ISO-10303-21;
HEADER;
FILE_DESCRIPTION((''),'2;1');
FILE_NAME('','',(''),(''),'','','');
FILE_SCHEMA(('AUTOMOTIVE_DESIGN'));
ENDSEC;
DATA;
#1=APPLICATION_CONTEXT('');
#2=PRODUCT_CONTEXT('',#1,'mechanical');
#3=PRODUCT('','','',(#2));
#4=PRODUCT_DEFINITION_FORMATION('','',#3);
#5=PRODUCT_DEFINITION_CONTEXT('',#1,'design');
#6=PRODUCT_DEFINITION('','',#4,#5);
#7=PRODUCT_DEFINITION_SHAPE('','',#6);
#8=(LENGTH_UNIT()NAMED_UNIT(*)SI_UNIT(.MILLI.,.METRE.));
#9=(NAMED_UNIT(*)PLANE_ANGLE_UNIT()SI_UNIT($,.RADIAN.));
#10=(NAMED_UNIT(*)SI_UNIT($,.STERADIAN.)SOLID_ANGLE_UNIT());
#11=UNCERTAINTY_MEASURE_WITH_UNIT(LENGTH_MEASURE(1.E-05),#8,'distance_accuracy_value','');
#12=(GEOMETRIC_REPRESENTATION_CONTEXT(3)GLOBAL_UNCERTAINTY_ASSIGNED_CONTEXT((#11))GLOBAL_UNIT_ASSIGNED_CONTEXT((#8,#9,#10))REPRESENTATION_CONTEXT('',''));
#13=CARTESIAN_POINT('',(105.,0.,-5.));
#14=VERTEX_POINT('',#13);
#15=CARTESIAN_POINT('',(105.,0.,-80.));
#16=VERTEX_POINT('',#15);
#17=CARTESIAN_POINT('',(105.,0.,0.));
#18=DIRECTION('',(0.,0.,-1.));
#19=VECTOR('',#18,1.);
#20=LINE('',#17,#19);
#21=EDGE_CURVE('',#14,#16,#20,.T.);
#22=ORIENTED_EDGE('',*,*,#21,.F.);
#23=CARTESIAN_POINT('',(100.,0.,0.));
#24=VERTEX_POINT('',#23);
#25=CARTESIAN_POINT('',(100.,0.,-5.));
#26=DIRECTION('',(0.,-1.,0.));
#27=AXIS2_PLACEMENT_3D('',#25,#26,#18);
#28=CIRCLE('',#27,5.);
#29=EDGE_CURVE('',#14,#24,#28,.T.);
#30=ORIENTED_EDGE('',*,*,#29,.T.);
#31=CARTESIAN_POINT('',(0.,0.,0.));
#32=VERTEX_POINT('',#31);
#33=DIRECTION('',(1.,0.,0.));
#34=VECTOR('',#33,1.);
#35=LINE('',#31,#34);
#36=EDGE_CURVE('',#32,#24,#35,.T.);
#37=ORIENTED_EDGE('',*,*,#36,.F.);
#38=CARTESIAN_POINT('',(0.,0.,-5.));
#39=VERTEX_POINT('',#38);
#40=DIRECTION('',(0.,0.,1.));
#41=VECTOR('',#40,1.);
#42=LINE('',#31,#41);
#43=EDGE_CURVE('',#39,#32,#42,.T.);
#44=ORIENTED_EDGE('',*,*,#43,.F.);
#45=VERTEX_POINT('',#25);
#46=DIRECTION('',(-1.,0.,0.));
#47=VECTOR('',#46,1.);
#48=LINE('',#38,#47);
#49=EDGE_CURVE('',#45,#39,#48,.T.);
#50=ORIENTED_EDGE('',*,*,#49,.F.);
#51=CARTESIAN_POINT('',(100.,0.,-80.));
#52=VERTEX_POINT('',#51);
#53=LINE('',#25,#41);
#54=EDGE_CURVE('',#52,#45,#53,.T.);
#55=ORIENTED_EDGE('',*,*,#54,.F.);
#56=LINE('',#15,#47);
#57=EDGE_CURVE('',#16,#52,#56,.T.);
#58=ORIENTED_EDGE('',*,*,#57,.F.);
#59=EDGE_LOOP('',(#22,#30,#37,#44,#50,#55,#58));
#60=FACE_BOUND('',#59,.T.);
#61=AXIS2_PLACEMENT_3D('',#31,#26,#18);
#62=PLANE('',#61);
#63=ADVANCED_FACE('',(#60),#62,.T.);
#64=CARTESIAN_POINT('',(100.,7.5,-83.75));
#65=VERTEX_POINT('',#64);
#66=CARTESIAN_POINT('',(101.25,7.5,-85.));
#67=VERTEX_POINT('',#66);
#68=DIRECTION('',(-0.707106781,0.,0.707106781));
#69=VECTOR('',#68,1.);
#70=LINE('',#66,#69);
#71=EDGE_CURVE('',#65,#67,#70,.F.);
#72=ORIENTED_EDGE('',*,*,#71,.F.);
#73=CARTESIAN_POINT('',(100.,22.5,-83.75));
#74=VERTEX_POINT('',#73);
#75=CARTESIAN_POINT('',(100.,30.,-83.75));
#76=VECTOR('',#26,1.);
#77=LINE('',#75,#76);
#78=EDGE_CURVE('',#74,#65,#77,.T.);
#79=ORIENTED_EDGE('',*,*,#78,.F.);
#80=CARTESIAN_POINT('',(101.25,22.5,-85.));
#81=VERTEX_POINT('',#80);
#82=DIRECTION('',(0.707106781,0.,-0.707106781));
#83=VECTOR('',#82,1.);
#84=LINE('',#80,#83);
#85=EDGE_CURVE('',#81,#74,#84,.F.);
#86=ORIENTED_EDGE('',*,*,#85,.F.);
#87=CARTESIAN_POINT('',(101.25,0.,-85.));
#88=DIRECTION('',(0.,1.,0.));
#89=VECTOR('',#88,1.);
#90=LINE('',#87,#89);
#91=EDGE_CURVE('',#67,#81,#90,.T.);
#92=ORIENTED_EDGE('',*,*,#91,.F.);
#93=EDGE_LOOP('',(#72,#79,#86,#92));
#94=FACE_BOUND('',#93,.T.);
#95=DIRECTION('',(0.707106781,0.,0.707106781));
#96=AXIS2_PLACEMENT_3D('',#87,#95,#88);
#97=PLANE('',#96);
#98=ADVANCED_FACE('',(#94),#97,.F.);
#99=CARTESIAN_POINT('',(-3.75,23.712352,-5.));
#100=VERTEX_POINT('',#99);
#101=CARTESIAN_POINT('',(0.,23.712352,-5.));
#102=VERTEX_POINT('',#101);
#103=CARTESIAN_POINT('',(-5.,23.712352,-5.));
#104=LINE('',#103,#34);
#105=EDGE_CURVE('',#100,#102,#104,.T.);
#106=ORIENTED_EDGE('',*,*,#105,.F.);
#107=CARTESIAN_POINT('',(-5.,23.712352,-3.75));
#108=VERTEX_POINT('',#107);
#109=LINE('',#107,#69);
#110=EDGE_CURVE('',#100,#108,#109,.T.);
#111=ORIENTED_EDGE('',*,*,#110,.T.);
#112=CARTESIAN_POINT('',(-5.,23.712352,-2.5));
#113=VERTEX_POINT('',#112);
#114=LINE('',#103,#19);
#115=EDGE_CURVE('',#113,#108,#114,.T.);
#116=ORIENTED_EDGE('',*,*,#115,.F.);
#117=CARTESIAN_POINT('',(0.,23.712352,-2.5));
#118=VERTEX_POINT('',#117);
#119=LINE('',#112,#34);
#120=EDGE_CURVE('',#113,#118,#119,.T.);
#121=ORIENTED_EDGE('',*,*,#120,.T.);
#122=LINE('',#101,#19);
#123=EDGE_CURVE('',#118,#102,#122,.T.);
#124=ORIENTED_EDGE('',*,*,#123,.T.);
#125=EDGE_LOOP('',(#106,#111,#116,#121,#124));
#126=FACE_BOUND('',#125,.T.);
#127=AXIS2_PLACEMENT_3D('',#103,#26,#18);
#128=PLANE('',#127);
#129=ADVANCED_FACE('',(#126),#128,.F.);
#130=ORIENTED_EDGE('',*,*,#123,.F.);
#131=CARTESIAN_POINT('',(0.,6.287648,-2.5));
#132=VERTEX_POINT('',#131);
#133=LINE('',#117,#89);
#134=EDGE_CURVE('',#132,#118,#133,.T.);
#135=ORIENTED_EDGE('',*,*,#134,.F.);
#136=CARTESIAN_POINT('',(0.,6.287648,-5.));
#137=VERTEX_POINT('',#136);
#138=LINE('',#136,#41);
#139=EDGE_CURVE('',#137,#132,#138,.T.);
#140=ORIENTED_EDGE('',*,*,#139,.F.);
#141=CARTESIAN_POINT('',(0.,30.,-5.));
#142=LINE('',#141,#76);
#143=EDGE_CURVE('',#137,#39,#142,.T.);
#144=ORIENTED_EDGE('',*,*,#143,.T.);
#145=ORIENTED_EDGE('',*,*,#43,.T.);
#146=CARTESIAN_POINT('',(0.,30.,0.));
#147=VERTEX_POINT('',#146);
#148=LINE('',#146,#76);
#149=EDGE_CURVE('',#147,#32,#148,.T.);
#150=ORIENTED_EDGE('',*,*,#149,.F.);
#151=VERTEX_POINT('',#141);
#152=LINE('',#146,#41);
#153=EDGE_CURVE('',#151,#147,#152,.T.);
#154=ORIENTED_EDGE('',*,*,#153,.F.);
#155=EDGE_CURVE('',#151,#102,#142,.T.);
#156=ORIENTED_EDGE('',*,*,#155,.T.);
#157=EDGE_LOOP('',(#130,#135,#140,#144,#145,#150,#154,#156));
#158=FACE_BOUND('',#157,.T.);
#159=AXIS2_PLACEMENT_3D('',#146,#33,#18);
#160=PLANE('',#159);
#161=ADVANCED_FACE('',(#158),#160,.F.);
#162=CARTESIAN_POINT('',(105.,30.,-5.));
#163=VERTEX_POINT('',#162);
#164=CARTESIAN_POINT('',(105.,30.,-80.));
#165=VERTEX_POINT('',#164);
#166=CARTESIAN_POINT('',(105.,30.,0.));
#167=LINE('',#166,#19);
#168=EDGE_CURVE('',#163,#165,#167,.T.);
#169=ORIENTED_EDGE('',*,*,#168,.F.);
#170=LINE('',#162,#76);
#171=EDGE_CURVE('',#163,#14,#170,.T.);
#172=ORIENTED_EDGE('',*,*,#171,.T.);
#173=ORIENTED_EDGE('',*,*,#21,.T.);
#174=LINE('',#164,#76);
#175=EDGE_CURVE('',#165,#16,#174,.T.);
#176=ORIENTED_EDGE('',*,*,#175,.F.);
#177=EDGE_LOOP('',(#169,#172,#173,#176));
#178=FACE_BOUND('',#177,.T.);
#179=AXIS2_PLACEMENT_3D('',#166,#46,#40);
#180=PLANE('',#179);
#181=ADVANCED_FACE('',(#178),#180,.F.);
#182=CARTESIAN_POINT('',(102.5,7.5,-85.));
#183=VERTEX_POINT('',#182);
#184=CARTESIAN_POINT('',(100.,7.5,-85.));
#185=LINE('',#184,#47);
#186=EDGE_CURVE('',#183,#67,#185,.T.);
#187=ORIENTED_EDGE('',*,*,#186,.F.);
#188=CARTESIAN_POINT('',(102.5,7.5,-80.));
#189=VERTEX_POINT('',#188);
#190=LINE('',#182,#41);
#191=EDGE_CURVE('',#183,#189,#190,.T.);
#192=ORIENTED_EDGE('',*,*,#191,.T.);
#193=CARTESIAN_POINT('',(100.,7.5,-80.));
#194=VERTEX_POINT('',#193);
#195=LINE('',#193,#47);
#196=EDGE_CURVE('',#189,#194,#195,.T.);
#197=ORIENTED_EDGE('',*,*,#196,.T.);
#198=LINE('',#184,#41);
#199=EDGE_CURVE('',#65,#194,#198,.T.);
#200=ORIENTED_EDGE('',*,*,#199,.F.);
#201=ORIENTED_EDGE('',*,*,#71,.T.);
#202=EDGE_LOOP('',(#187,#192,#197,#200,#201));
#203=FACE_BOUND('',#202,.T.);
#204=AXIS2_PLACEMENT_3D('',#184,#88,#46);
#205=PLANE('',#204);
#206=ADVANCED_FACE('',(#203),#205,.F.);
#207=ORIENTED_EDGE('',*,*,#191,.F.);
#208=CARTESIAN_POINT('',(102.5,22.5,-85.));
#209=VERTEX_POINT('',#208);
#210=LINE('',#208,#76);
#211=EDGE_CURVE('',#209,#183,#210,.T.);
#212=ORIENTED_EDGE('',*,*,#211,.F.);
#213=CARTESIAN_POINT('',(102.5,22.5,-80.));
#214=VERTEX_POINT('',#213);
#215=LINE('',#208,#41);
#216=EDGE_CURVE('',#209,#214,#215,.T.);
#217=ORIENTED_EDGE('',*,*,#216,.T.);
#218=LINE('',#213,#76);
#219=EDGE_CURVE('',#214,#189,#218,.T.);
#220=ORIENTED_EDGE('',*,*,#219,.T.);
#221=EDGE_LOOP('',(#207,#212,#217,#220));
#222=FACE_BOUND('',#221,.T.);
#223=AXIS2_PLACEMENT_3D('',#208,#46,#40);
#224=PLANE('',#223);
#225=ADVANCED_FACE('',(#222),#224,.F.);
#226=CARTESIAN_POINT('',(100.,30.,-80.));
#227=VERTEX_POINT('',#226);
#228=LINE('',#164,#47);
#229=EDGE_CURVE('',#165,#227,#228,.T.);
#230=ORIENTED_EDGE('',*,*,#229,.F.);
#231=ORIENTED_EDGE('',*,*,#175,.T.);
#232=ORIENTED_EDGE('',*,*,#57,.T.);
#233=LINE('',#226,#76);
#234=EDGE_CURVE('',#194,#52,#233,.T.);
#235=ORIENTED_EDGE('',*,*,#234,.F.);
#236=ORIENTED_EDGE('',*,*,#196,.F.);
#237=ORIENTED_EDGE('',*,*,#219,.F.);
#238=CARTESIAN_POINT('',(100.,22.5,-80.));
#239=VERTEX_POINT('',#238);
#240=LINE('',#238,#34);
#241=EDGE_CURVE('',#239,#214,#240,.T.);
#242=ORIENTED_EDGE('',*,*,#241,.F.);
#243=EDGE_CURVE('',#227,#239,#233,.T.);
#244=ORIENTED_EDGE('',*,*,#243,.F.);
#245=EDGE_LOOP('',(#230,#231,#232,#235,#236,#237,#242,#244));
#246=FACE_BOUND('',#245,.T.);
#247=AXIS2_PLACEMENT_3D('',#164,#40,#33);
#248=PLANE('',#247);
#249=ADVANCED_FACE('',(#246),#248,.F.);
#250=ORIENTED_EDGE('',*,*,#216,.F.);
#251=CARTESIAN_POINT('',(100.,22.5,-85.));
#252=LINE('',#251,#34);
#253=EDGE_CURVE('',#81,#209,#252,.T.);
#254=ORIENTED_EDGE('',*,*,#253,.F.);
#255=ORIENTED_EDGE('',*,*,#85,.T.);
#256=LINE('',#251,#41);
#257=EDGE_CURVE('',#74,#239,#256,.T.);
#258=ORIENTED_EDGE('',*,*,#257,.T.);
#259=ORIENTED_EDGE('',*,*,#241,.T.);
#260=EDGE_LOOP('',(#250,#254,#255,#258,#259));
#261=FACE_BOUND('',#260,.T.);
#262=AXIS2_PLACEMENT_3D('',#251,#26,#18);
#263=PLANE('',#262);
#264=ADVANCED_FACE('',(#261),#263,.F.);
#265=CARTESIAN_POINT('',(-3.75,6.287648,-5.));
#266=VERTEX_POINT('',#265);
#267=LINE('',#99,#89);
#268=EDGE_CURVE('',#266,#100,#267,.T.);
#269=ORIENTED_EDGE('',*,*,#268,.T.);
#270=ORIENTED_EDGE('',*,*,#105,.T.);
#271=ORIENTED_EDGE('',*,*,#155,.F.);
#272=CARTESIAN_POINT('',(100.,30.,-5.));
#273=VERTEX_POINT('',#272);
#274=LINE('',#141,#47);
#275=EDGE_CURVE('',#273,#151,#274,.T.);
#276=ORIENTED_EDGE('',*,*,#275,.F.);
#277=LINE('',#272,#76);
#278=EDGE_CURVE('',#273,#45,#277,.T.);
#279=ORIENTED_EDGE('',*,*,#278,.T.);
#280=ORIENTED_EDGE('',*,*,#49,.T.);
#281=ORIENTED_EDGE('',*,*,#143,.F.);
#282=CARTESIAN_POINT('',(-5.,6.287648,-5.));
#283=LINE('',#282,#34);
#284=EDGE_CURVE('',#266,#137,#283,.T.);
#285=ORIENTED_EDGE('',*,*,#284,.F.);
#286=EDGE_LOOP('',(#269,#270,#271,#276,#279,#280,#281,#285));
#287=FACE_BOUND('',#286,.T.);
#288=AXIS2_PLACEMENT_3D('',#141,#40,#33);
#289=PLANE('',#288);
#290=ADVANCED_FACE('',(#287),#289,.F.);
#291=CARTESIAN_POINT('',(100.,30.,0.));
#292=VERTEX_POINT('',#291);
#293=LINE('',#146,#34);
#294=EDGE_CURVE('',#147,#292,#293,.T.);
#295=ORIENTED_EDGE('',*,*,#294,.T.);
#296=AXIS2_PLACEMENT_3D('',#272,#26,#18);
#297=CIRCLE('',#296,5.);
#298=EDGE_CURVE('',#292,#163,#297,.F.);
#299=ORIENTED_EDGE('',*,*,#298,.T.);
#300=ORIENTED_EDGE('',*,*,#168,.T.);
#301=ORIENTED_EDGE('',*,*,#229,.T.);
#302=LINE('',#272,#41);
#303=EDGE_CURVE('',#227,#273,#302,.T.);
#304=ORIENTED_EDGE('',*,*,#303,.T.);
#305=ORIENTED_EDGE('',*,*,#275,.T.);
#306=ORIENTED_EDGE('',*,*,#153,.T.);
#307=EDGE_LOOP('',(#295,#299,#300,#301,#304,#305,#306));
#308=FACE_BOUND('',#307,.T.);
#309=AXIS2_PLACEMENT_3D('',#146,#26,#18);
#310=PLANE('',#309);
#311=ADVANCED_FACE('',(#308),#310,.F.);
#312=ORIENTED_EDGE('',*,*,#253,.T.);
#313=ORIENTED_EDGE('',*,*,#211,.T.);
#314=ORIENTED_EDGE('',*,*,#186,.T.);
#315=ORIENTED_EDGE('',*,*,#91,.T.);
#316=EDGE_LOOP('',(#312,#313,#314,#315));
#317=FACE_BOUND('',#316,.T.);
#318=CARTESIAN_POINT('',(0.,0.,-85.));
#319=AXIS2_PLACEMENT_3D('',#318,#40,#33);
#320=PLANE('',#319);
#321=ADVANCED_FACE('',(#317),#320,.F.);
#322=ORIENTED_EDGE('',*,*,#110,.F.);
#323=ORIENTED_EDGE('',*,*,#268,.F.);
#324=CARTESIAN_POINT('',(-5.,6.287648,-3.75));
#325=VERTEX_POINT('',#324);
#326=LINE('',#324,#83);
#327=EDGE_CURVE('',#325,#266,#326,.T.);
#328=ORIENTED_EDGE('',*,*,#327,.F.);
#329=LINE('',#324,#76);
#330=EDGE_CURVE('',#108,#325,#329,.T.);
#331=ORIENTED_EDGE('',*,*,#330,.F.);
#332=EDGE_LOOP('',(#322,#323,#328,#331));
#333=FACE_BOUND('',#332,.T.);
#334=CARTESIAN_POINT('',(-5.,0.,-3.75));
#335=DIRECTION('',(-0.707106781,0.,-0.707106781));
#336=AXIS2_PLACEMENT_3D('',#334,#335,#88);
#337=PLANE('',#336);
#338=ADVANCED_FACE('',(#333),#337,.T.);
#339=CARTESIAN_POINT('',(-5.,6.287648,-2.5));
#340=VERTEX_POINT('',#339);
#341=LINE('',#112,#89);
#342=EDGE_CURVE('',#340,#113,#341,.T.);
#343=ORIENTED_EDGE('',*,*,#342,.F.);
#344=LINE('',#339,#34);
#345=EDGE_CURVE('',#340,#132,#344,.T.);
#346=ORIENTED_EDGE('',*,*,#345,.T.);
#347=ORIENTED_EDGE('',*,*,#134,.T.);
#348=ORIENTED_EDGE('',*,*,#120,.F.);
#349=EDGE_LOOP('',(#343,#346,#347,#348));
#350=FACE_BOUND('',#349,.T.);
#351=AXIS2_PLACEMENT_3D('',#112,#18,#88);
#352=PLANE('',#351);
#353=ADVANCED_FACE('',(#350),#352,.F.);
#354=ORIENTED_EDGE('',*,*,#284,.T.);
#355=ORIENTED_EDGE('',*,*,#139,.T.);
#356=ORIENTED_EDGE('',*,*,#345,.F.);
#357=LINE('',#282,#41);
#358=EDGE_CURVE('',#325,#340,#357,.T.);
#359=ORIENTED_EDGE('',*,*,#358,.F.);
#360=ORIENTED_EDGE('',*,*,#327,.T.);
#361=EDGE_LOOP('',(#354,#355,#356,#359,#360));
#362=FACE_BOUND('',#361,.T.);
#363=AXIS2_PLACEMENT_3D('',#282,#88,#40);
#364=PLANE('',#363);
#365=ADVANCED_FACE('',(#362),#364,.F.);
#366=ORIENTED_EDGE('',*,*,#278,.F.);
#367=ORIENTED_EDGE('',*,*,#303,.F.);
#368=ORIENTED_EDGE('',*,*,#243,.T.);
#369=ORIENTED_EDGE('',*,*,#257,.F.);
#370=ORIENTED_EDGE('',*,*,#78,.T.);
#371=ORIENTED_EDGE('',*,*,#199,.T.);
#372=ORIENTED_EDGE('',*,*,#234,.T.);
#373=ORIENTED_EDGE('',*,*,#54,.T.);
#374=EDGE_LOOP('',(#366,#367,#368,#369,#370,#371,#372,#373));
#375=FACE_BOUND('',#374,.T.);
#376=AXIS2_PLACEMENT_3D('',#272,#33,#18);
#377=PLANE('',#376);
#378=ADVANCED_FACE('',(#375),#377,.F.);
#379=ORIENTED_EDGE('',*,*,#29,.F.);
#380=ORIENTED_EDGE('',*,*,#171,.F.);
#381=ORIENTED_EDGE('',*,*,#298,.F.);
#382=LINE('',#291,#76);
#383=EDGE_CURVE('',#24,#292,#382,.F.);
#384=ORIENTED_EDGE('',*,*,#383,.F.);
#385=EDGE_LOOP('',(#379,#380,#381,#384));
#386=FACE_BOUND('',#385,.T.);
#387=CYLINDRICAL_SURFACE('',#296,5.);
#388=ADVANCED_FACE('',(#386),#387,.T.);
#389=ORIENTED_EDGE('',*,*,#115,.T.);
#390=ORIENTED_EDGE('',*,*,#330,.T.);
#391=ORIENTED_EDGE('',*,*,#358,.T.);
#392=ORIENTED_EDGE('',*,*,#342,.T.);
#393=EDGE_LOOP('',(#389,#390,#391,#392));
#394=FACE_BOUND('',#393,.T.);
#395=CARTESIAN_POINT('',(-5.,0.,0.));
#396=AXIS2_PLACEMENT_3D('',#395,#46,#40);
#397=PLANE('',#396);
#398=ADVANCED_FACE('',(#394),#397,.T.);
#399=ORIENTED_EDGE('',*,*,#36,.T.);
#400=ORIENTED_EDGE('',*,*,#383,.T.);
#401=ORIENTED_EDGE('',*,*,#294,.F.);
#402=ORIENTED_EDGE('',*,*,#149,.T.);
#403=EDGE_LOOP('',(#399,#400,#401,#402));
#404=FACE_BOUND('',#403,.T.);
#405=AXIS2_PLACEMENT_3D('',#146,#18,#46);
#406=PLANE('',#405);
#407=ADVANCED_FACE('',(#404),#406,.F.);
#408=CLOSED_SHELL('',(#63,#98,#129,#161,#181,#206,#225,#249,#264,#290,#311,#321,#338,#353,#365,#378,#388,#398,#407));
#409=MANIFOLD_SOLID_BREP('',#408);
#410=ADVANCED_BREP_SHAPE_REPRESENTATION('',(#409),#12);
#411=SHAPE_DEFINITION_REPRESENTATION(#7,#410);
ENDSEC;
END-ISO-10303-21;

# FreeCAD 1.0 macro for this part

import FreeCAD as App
import Part
import Sketcher
from FreeCAD import Vector


def edges_at(feature, points):
    """Names of the edges that pass closest to the given points."""
    edges = feature.Shape.Edges
    near = lambda p: min(range(len(edges)), key=lambda i: edges[i].distToShape(Part.Vertex(*p))[0])
    return sorted({f"Edge{near(p) + 1}" for p in points})

doc = App.newDocument("Part")
body = doc.addObject("PartDesign::Body", "Body")

# Sketch on XZ plane
sketch1 = body.newObject("Sketcher::SketchObject", "Sketch")
sketch1.AttachmentSupport = (doc.getObject("XZ_Plane"), [""])
sketch1.MapMode = "FlatFace"
sketch1.addGeometry(Part.LineSegment(Vector(0, 0, 0), Vector(105, 0, 0)), False)
sketch1.addGeometry(Part.LineSegment(Vector(105, 0, 0), Vector(105, -80, 0)), False)
sketch1.addGeometry(Part.LineSegment(Vector(105, -80, 0), Vector(100, -80, 0)), False)
sketch1.addGeometry(Part.LineSegment(Vector(100, -80, 0), Vector(100, -5, 0)), False)
sketch1.addGeometry(Part.LineSegment(Vector(100, -5, 0), Vector(0, -5, 0)), False)
sketch1.addGeometry(Part.LineSegment(Vector(0, -5, 0), Vector(0, 0, 0)), False)
sketch1.addConstraint(Sketcher.Constraint("Coincident", 0, 2, 1, 1))
sketch1.addConstraint(Sketcher.Constraint("Coincident", 1, 2, 2, 1))
sketch1.addConstraint(Sketcher.Constraint("Coincident", 2, 2, 3, 1))
sketch1.addConstraint(Sketcher.Constraint("Coincident", 3, 2, 4, 1))
sketch1.addConstraint(Sketcher.Constraint("Coincident", 4, 2, 5, 1))
sketch1.addConstraint(Sketcher.Constraint("Coincident", 5, 2, 0, 1))
sketch1.addConstraint(Sketcher.Constraint("Horizontal", 0))
sketch1.addConstraint(Sketcher.Constraint("Vertical", 1))
sketch1.addConstraint(Sketcher.Constraint("Horizontal", 2))
sketch1.addConstraint(Sketcher.Constraint("Vertical", 3))
sketch1.addConstraint(Sketcher.Constraint("Horizontal", 4))
sketch1.addConstraint(Sketcher.Constraint("Vertical", 5))
sketch1.addConstraint(Sketcher.Constraint("Coincident", 5, 2, -1, 1))
sketch1.addConstraint(Sketcher.Constraint("Equal", 2, 5))
sketch1.addConstraint(Sketcher.Constraint("DistanceX", 0, 1, 0, 2, 105.0))
sketch1.addConstraint(Sketcher.Constraint("DistanceX", 2, 2, 2, 1, 5.0))
sketch1.addConstraint(Sketcher.Constraint("DistanceY", 1, 2, 1, 1, 80.0))
pad1 = body.newObject("PartDesign::Pad", "Pad")
pad1.Profile = sketch1
pad1.Length = 30
pad1.Reversed = True

# Sketch on YZ plane
sketch2 = body.newObject("Sketcher::SketchObject", "Sketch001")
sketch2.AttachmentSupport = (doc.getObject("YZ_Plane"), [""])
sketch2.MapMode = "FlatFace"
sketch2.addGeometry(Part.LineSegment(Vector(23.7, -5, 0), Vector(6.3, -5, 0)), False)
sketch2.addGeometry(Part.LineSegment(Vector(6.3, -5, 0), Vector(6.3, -2.5, 0)), False)
sketch2.addGeometry(Part.LineSegment(Vector(6.3, -2.5, 0), Vector(23.7, -2.5, 0)), False)
sketch2.addGeometry(Part.LineSegment(Vector(23.7, -2.5, 0), Vector(23.7, -5, 0)), False)
sketch2.addConstraint(Sketcher.Constraint("Coincident", 0, 2, 1, 1))
sketch2.addConstraint(Sketcher.Constraint("Coincident", 1, 2, 2, 1))
sketch2.addConstraint(Sketcher.Constraint("Coincident", 2, 2, 3, 1))
sketch2.addConstraint(Sketcher.Constraint("Coincident", 3, 2, 0, 1))
sketch2.addConstraint(Sketcher.Constraint("Horizontal", 0))
sketch2.addConstraint(Sketcher.Constraint("Vertical", 1))
sketch2.addConstraint(Sketcher.Constraint("Horizontal", 2))
sketch2.addConstraint(Sketcher.Constraint("Vertical", 3))
sketch2.addConstraint(Sketcher.Constraint("DistanceY", 1, 1, 1, 2, 2.5))
sketch2.addConstraint(Sketcher.Constraint("DistanceY", 0, 2, -1, 1, 5.0))
sketch2.addConstraint(Sketcher.Constraint("DistanceX", 0, 2, 0, 1, 17.424705))
sketch2.addConstraint(Sketcher.Constraint("DistanceX", -1, 1, 0, 2, 6.287648))
pad2 = body.newObject("PartDesign::Pad", "Pad001")
pad2.Profile = sketch2
pad2.Length = 5
pad2.Reversed = True
doc.recompute()

chamfer = body.newObject("PartDesign::Chamfer", "Chamfer")
chamfer.Base = (pad2, edges_at(pad2, [(-5, 15, -5)]))
chamfer.Size = 1.25

# Sketch on XY plane
sketch3 = body.newObject("Sketcher::SketchObject", "Sketch002")
sketch3.AttachmentSupport = (doc.getObject("XY_Plane"), [""])
sketch3.MapMode = "FlatFace"
sketch3.AttachmentOffset = App.Placement(Vector(0, 0, -80), App.Rotation())
sketch3.addGeometry(Part.LineSegment(Vector(102.5, 22.5, 0), Vector(102.5, 7.5, 0)), False)
sketch3.addGeometry(Part.LineSegment(Vector(102.5, 7.5, 0), Vector(100, 7.5, 0)), False)
sketch3.addGeometry(Part.LineSegment(Vector(100, 7.5, 0), Vector(100, 22.5, 0)), False)
sketch3.addGeometry(Part.LineSegment(Vector(100, 22.5, 0), Vector(102.5, 22.5, 0)), False)
sketch3.addConstraint(Sketcher.Constraint("Coincident", 0, 2, 1, 1))
sketch3.addConstraint(Sketcher.Constraint("Coincident", 1, 2, 2, 1))
sketch3.addConstraint(Sketcher.Constraint("Coincident", 2, 2, 3, 1))
sketch3.addConstraint(Sketcher.Constraint("Coincident", 3, 2, 0, 1))
sketch3.addConstraint(Sketcher.Constraint("Vertical", 0))
sketch3.addConstraint(Sketcher.Constraint("Horizontal", 1))
sketch3.addConstraint(Sketcher.Constraint("Vertical", 2))
sketch3.addConstraint(Sketcher.Constraint("Horizontal", 3))
sketch3.addConstraint(Sketcher.Constraint("DistanceY", 0, 2, 0, 1, 15.0))
sketch3.addConstraint(Sketcher.Constraint("DistanceX", 1, 2, 1, 1, 2.5))
sketch3.addConstraint(Sketcher.Constraint("DistanceX", -1, 1, 1, 2, 100.0))
sketch3.addConstraint(Sketcher.Constraint("DistanceY", -1, 1, 0, 2, 7.5))
pad3 = body.newObject("PartDesign::Pad", "Pad002")
pad3.Profile = sketch3
pad3.Length = 5
pad3.Reversed = True
doc.recompute()

chamfer2 = body.newObject("PartDesign::Chamfer", "Chamfer001")
chamfer2.Base = (pad3, edges_at(pad3, [(100, 15, -85)]))
chamfer2.Size = 1.25
doc.recompute()

fillet = body.newObject("PartDesign::Fillet", "Fillet")
fillet.Base = (chamfer2, edges_at(chamfer2, [(105, 15, 0)]))
fillet.Radius = 5

doc.recompute()
